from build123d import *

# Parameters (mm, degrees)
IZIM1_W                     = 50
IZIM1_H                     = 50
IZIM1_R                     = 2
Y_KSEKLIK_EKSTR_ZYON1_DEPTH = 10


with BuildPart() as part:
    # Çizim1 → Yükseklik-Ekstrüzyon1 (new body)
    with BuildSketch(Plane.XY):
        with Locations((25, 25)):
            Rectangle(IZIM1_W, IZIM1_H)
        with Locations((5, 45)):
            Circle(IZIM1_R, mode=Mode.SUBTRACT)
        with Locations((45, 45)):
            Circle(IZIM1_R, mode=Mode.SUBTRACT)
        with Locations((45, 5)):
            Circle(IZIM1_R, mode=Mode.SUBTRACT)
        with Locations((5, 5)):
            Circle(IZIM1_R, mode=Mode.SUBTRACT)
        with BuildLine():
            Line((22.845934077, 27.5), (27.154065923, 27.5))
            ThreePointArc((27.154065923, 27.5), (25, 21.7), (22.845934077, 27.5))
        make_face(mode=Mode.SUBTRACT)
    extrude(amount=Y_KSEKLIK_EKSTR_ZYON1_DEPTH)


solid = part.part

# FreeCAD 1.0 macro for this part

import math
import FreeCAD as App
import Part
import Sketcher

V = App.Vector
Q = App.Units.Quantity

doc = App.newDocument("Part")
body = doc.addObject("PartDesign::Body", "Body")

# Sketch on XY plane
sketch1 = doc.addObject("Sketcher::SketchObject", "Sketch")
body.addObject(sketch1)
sketch1.AttachmentSupport = (doc.XY_Plane, [""])
sketch1.MapMode = "FlatFace"
sketch1.addGeometry([
    Part.LineSegment(V(0, 50, 0), V(0, 0, 0)),  # 0
    Part.LineSegment(V(0, 0, 0), V(50, 0, 0)),  # 1
    Part.LineSegment(V(50, 0, 0), V(50, 50, 0)),  # 2
    Part.LineSegment(V(50, 50, 0), V(0, 50, 0)),  # 3
    Part.Circle(V(5, 5, 0), V(0, 0, 1), 2),  # 4
    Part.Circle(V(45, 5, 0), V(0, 0, 1), 2),  # 5
    Part.ArcOfCircle(Part.Circle(V(25, 25, 0), V(0, 0, 1), 3.3), math.radians(131), math.radians(409)),  # 6
    Part.LineSegment(V(22.8, 27.5, 0), V(27.2, 27.5, 0)),  # 7
    Part.Circle(V(5, 45, 0), V(0, 0, 1), 2),  # 8
    Part.Circle(V(45, 45, 0), V(0, 0, 1), 2),  # 9
], False)
sketch1.addConstraint([
    Sketcher.Constraint("Coincident", 0, 2, 1, 1),
    Sketcher.Constraint("Coincident", 1, 2, 2, 1),
    Sketcher.Constraint("Coincident", 2, 2, 3, 1),
    Sketcher.Constraint("Coincident", 3, 2, 0, 1),
    Sketcher.Constraint("Coincident", 6, 1, 7, 1),
    Sketcher.Constraint("Coincident", 7, 2, 6, 2),
    Sketcher.Constraint("Vertical", 0),
    Sketcher.Constraint("Horizontal", 1),
    Sketcher.Constraint("Vertical", 2),
    Sketcher.Constraint("Horizontal", 3),
    Sketcher.Constraint("Horizontal", 7),
    Sketcher.Constraint("Coincident", 0, 2, -1, 1),
    Sketcher.Constraint("Equal", 4, 5),
    Sketcher.Constraint("Equal", 5, 8),
    Sketcher.Constraint("Equal", 8, 9),
    Sketcher.Constraint("Horizontal", 4, 3, 5, 3),
    Sketcher.Constraint("Horizontal", 8, 3, 9, 3),
    Sketcher.Constraint("Vertical", 4, 3, 8, 3),
    Sketcher.Constraint("Vertical", 5, 3, 9, 3),
    Sketcher.Constraint("Equal", 3, 0),
    Sketcher.Constraint("Diameter", 4, Q("4 mm")),
    Sketcher.Constraint("Radius", 6, Q("3.3 mm")),
    Sketcher.Constraint("DistanceX", 1, 1, 1, 2, Q("50 mm")),
    Sketcher.Constraint("DistanceX", -1, 1, 4, 3, Q("5 mm")),
    Sketcher.Constraint("DistanceY", -1, 1, 4, 3, Q("5 mm")),
    Sketcher.Constraint("DistanceX", -1, 1, 5, 3, Q("45 mm")),
    Sketcher.Constraint("DistanceX", -1, 1, 6, 3, Q("25 mm")),
    Sketcher.Constraint("DistanceY", -1, 1, 6, 3, Q("25 mm")),
    Sketcher.Constraint("DistanceY", -1, 1, 8, 3, Q("45 mm")),
    Sketcher.Constraint("DistanceY", -1, 1, 6, 1, Q("27.5 mm")),
])
pad1 = doc.addObject("PartDesign::Pad", "Pad")
body.addObject(pad1)
pad1.Profile = sketch1
pad1.Length = 10

doc.recompute()
